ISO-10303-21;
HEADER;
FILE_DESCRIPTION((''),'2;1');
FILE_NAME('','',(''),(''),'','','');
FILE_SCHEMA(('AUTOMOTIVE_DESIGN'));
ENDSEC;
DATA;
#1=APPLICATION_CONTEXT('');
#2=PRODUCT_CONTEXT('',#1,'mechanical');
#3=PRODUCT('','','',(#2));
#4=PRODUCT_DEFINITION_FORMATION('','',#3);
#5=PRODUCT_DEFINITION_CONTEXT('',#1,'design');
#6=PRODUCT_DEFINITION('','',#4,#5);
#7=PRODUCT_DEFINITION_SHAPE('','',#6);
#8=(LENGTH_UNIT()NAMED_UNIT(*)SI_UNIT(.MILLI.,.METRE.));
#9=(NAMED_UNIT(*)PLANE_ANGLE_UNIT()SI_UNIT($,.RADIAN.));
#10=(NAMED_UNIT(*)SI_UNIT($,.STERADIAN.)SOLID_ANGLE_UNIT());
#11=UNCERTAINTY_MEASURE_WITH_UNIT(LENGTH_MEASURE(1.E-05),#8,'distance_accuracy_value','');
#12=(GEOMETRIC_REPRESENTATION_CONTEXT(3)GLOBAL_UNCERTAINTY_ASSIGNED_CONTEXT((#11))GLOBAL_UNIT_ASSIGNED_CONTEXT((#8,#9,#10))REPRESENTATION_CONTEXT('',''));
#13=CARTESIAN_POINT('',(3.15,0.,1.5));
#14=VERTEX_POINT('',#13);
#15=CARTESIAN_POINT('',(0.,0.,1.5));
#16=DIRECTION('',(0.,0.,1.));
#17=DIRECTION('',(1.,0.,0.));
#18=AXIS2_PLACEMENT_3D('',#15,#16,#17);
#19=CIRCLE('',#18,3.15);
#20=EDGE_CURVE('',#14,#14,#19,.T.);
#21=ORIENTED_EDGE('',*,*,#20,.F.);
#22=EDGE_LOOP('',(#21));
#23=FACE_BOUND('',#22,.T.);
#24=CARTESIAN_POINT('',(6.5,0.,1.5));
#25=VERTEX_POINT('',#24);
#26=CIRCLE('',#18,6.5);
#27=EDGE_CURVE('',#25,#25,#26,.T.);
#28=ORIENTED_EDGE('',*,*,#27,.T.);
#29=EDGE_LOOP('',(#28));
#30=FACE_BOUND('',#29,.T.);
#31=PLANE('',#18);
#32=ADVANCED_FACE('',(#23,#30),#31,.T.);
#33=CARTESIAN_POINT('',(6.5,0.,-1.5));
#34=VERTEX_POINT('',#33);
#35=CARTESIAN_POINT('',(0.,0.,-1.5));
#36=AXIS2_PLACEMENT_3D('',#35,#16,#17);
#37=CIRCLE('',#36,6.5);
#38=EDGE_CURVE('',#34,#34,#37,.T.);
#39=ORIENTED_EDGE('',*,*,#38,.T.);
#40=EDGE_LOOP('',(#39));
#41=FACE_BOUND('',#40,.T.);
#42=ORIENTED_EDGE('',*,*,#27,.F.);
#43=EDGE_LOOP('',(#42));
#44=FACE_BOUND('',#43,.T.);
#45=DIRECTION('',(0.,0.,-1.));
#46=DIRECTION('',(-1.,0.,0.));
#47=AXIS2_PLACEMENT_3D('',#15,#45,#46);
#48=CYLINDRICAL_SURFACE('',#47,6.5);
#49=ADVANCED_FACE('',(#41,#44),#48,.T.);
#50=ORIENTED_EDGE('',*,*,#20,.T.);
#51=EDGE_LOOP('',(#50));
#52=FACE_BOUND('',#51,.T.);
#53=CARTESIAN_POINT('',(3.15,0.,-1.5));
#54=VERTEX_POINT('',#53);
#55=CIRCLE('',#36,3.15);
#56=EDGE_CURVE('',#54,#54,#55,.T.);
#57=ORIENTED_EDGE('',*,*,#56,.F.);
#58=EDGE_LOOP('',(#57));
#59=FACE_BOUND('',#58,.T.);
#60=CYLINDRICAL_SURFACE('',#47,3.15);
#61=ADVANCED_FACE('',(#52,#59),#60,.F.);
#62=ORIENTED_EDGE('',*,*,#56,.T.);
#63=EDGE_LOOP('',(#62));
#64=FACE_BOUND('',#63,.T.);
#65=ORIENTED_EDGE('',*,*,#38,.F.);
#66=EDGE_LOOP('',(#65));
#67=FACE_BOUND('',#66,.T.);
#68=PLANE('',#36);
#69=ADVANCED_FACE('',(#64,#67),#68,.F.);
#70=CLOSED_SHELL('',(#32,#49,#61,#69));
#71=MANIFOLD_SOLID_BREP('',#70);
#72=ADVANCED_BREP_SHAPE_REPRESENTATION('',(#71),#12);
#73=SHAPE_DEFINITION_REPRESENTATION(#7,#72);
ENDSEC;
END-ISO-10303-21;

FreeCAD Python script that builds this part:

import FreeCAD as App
import Part
import Sketcher
Q = App.Units.Quantity

doc = App.newDocument("Part")
body = doc.addObject("PartDesign::Body", "Body")

sketch1 = body.newObject("Sketcher::SketchObject", "Sketch")
sketch1.AttachmentSupport = (doc.getObject("XY_Plane"), [""])
sketch1.MapMode = "FlatFace"
sketch1.addGeometry(Part.Circle(App.Vector(0, 0, 0), App.Vector(0, 0, 1), 6.5), False)
sketch1.addGeometry(Part.Circle(App.Vector(0, 0, 0), App.Vector(0, 0, 1), 3.15), False)
sketch1.addConstraint(Sketcher.Constraint("Coincident", 0, 3, -1, 1))
sketch1.addConstraint(Sketcher.Constraint("Coincident", 1, 3, -1, 1))
sketch1.addConstraint(Sketcher.Constraint("Diameter", 0, Q("13 mm")))
sketch1.addConstraint(Sketcher.Constraint("Diameter", 1, Q("6.3 mm")))
pad1 = body.newObject("PartDesign::Pad", "Pad")
pad1.Profile = sketch1
pad1.Length = 3
pad1.Midplane = True

doc.recompute()
